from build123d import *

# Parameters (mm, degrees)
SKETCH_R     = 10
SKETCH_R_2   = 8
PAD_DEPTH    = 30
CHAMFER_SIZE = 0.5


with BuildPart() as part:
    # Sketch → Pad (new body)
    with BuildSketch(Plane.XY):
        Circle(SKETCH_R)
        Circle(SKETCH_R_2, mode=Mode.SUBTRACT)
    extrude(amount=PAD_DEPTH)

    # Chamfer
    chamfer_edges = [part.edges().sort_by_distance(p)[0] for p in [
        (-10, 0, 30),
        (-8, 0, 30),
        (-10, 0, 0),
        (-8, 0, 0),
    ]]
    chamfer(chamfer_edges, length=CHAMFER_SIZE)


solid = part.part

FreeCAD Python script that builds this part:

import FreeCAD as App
import Part
import Sketcher


def edges_at(feature, points):
    """Names of the edges that pass closest to the given points."""
    edges = feature.Shape.Edges
    near = lambda p: min(range(len(edges)), key=lambda i: edges[i].distToShape(Part.Vertex(*p))[0])
    return sorted({f"Edge{near(p) + 1}" for p in points})

doc = App.newDocument("Part")
params = doc.addObject("Spreadsheet::Sheet", "Params")
for row, (alias, value) in enumerate([
    ("sketch1_diameter", "20 mm"),
    ("sketch1_diameter2", "16 mm"),
    ("pad1_length", "30 mm"),
    ("chamfer_size", "0.5 mm"),
], start=1):
    params.set(f"A{row}", alias)
    params.set(f"B{row}", "=" + value)
    params.setAlias(f"B{row}", alias)

body = doc.addObject("PartDesign::Body", "Body")

# Sketch on XY plane
sketch1 = body.newObject("Sketcher::SketchObject", "Sketch")
sketch1.AttachmentSupport = (doc.getObject("XY_Plane"), [""])
sketch1.MapMode = "FlatFace"
sketch1.addGeometry([
    Part.Circle(App.Vector(0, 0, 0), App.Vector(0, 0, 1), 10),
    Part.Circle(App.Vector(0, 0, 0), App.Vector(0, 0, 1), 8),
], False)
sketch1.addConstraint([
    Sketcher.Constraint("Coincident", 0, 3, -1, 1),
    Sketcher.Constraint("Coincident", 1, 3, -1, 1),
    Sketcher.Constraint("Diameter", 0, 20.0),
    Sketcher.Constraint("Diameter", 1, 16.0),
])
sketch1.setExpression("Constraints[2]", "Params.sketch1_diameter")
sketch1.setExpression("Constraints[3]", "Params.sketch1_diameter2")
pad1 = body.newObject("PartDesign::Pad", "Pad")
pad1.Profile = sketch1
pad1.setExpression("Length", "Params.pad1_length")
doc.recompute()

chamfer = body.newObject("PartDesign::Chamfer", "Chamfer")
chamfer.Base = (pad1, edges_at(pad1, [
    (-10, 0, 30),
    (-8, 0, 30),
    (-10, 0, 0),
    (-8, 0, 0),
]))
chamfer.setExpression("Size", "Params.chamfer_size")

doc.recompute()
